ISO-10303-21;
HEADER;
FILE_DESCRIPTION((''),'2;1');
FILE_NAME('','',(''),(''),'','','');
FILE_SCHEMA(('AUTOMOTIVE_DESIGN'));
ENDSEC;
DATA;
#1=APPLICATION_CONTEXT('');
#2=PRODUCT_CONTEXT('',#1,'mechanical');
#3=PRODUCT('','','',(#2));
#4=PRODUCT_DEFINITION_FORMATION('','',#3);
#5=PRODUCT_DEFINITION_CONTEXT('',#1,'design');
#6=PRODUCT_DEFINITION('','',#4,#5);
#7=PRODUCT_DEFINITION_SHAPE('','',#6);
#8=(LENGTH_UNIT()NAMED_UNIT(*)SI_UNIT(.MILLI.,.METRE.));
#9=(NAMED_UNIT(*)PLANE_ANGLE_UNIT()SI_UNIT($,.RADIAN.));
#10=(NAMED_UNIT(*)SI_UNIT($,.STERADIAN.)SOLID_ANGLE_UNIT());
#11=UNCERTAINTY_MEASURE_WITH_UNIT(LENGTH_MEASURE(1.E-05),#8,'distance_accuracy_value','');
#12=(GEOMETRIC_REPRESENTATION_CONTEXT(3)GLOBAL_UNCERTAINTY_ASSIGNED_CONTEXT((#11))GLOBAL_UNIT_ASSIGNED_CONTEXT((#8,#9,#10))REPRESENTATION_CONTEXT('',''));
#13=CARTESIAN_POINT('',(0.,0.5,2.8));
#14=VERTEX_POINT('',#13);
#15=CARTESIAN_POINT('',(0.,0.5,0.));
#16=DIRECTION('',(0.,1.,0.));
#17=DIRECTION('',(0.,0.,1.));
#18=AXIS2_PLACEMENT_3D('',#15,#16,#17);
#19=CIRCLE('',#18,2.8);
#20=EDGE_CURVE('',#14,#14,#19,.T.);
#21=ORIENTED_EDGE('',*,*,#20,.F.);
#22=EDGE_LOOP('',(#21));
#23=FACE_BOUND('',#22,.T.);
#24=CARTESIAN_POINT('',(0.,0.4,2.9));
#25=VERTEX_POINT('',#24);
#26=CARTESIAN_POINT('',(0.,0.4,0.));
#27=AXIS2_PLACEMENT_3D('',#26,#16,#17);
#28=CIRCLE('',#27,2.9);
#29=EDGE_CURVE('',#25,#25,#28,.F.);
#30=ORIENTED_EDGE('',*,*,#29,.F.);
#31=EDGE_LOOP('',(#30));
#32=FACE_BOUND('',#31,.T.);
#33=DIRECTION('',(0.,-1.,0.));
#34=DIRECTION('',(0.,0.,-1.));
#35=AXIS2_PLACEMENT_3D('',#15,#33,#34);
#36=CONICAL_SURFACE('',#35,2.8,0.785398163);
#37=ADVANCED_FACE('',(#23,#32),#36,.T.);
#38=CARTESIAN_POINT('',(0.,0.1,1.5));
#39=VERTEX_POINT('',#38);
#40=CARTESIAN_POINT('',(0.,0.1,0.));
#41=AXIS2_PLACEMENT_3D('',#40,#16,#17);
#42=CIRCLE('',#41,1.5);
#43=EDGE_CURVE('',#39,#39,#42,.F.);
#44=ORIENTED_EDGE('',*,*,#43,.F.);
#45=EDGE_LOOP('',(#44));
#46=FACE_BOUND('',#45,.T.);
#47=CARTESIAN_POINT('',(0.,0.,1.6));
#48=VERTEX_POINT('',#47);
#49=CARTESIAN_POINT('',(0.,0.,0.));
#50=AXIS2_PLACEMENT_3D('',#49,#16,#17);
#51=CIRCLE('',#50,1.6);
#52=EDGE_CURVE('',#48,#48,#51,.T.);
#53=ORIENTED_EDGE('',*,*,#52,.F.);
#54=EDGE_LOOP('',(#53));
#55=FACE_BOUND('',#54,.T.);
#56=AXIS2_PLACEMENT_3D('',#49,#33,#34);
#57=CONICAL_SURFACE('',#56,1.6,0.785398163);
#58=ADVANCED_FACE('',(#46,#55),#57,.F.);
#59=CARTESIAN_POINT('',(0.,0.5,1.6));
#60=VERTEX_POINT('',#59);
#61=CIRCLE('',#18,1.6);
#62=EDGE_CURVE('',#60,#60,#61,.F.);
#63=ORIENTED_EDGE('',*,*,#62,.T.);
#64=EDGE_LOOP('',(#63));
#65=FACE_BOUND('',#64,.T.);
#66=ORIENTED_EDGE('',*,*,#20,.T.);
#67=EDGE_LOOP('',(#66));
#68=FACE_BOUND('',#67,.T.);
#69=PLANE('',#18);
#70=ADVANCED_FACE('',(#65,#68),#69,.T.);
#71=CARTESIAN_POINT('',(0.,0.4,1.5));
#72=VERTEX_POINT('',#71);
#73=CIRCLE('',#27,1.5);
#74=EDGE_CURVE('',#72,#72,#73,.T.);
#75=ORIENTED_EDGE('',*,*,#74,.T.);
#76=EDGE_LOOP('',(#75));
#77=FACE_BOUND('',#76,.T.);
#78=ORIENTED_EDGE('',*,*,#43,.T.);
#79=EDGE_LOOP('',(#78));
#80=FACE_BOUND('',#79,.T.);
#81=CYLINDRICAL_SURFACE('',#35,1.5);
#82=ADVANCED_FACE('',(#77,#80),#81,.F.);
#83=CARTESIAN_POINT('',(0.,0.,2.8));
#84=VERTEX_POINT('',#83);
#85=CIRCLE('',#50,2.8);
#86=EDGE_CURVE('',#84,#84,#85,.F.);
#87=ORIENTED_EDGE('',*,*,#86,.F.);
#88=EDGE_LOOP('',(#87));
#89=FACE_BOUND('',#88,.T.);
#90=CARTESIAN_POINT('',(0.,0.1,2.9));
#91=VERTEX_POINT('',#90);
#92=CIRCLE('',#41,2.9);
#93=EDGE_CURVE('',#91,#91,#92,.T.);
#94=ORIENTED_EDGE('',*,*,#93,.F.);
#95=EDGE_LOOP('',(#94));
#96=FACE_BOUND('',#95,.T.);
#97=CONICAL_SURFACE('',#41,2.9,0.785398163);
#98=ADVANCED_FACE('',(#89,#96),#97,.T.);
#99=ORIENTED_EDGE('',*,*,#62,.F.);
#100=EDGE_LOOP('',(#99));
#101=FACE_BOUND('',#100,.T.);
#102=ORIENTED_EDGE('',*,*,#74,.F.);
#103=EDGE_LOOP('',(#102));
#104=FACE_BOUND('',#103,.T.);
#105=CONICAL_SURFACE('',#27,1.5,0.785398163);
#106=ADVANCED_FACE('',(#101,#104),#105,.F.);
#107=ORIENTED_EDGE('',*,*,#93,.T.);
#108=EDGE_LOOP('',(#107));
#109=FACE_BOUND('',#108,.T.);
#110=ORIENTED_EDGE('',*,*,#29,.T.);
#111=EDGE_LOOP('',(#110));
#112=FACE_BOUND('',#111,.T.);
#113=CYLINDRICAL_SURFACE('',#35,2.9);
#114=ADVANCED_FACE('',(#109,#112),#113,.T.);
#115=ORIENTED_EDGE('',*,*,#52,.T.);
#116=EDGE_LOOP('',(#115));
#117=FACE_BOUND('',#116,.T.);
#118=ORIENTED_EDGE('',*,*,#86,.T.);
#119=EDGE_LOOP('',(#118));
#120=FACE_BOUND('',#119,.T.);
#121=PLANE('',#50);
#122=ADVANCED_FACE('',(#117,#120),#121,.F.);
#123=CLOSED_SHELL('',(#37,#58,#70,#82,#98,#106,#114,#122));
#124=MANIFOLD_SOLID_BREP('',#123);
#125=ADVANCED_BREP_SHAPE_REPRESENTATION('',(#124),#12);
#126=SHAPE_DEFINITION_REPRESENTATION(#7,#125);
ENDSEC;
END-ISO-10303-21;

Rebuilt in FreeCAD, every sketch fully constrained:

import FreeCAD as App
import Part
import Sketcher

V = App.Vector


def edges_at(feature, points):
    """Names of the edges that pass closest to the given points."""
    edges = feature.Shape.Edges
    near = lambda p: min(range(len(edges)), key=lambda i: edges[i].distToShape(Part.Vertex(*p))[0])
    return sorted({f"Edge{near(p) + 1}" for p in points})

doc = App.newDocument("Part")
body = doc.addObject("PartDesign::Body", "Body")

# Sketch on XZ plane
sketch1 = body.newObject("Sketcher::SketchObject", "Sketch")
sketch1.AttachmentSupport = (doc.getObject("XZ_Plane"), [""])
sketch1.MapMode = "FlatFace"
sketch1.addGeometry(Part.Circle(V(0, 0, 0), V(0, 0, 1), 2.9), False)
sketch1.addGeometry(Part.Circle(V(0, 0, 0), V(0, 0, 1), 1.5), False)
sketch1.addConstraint(Sketcher.Constraint("Coincident", 0, 3, -1, 1))
sketch1.addConstraint(Sketcher.Constraint("Coincident", 1, 3, -1, 1))
sketch1.addConstraint(Sketcher.Constraint("Diameter", 1, 3.0))
sketch1.addConstraint(Sketcher.Constraint("Diameter", 0, 5.8))
pad1 = body.newObject("PartDesign::Pad", "Pad")
pad1.Profile = sketch1
pad1.Length = 0.5
pad1.Reversed = True
doc.recompute()

chamfer = body.newObject("PartDesign::Chamfer", "Chamfer")
chamfer.Base = (pad1, edges_at(pad1, [
    (-2.9, 0, 0),
    (-2.9, 0.5, 0),
    (-1.5, 0, 0),
    (-1.5, 0.5, 0),
]))
chamfer.Size = 0.1

doc.recompute()
